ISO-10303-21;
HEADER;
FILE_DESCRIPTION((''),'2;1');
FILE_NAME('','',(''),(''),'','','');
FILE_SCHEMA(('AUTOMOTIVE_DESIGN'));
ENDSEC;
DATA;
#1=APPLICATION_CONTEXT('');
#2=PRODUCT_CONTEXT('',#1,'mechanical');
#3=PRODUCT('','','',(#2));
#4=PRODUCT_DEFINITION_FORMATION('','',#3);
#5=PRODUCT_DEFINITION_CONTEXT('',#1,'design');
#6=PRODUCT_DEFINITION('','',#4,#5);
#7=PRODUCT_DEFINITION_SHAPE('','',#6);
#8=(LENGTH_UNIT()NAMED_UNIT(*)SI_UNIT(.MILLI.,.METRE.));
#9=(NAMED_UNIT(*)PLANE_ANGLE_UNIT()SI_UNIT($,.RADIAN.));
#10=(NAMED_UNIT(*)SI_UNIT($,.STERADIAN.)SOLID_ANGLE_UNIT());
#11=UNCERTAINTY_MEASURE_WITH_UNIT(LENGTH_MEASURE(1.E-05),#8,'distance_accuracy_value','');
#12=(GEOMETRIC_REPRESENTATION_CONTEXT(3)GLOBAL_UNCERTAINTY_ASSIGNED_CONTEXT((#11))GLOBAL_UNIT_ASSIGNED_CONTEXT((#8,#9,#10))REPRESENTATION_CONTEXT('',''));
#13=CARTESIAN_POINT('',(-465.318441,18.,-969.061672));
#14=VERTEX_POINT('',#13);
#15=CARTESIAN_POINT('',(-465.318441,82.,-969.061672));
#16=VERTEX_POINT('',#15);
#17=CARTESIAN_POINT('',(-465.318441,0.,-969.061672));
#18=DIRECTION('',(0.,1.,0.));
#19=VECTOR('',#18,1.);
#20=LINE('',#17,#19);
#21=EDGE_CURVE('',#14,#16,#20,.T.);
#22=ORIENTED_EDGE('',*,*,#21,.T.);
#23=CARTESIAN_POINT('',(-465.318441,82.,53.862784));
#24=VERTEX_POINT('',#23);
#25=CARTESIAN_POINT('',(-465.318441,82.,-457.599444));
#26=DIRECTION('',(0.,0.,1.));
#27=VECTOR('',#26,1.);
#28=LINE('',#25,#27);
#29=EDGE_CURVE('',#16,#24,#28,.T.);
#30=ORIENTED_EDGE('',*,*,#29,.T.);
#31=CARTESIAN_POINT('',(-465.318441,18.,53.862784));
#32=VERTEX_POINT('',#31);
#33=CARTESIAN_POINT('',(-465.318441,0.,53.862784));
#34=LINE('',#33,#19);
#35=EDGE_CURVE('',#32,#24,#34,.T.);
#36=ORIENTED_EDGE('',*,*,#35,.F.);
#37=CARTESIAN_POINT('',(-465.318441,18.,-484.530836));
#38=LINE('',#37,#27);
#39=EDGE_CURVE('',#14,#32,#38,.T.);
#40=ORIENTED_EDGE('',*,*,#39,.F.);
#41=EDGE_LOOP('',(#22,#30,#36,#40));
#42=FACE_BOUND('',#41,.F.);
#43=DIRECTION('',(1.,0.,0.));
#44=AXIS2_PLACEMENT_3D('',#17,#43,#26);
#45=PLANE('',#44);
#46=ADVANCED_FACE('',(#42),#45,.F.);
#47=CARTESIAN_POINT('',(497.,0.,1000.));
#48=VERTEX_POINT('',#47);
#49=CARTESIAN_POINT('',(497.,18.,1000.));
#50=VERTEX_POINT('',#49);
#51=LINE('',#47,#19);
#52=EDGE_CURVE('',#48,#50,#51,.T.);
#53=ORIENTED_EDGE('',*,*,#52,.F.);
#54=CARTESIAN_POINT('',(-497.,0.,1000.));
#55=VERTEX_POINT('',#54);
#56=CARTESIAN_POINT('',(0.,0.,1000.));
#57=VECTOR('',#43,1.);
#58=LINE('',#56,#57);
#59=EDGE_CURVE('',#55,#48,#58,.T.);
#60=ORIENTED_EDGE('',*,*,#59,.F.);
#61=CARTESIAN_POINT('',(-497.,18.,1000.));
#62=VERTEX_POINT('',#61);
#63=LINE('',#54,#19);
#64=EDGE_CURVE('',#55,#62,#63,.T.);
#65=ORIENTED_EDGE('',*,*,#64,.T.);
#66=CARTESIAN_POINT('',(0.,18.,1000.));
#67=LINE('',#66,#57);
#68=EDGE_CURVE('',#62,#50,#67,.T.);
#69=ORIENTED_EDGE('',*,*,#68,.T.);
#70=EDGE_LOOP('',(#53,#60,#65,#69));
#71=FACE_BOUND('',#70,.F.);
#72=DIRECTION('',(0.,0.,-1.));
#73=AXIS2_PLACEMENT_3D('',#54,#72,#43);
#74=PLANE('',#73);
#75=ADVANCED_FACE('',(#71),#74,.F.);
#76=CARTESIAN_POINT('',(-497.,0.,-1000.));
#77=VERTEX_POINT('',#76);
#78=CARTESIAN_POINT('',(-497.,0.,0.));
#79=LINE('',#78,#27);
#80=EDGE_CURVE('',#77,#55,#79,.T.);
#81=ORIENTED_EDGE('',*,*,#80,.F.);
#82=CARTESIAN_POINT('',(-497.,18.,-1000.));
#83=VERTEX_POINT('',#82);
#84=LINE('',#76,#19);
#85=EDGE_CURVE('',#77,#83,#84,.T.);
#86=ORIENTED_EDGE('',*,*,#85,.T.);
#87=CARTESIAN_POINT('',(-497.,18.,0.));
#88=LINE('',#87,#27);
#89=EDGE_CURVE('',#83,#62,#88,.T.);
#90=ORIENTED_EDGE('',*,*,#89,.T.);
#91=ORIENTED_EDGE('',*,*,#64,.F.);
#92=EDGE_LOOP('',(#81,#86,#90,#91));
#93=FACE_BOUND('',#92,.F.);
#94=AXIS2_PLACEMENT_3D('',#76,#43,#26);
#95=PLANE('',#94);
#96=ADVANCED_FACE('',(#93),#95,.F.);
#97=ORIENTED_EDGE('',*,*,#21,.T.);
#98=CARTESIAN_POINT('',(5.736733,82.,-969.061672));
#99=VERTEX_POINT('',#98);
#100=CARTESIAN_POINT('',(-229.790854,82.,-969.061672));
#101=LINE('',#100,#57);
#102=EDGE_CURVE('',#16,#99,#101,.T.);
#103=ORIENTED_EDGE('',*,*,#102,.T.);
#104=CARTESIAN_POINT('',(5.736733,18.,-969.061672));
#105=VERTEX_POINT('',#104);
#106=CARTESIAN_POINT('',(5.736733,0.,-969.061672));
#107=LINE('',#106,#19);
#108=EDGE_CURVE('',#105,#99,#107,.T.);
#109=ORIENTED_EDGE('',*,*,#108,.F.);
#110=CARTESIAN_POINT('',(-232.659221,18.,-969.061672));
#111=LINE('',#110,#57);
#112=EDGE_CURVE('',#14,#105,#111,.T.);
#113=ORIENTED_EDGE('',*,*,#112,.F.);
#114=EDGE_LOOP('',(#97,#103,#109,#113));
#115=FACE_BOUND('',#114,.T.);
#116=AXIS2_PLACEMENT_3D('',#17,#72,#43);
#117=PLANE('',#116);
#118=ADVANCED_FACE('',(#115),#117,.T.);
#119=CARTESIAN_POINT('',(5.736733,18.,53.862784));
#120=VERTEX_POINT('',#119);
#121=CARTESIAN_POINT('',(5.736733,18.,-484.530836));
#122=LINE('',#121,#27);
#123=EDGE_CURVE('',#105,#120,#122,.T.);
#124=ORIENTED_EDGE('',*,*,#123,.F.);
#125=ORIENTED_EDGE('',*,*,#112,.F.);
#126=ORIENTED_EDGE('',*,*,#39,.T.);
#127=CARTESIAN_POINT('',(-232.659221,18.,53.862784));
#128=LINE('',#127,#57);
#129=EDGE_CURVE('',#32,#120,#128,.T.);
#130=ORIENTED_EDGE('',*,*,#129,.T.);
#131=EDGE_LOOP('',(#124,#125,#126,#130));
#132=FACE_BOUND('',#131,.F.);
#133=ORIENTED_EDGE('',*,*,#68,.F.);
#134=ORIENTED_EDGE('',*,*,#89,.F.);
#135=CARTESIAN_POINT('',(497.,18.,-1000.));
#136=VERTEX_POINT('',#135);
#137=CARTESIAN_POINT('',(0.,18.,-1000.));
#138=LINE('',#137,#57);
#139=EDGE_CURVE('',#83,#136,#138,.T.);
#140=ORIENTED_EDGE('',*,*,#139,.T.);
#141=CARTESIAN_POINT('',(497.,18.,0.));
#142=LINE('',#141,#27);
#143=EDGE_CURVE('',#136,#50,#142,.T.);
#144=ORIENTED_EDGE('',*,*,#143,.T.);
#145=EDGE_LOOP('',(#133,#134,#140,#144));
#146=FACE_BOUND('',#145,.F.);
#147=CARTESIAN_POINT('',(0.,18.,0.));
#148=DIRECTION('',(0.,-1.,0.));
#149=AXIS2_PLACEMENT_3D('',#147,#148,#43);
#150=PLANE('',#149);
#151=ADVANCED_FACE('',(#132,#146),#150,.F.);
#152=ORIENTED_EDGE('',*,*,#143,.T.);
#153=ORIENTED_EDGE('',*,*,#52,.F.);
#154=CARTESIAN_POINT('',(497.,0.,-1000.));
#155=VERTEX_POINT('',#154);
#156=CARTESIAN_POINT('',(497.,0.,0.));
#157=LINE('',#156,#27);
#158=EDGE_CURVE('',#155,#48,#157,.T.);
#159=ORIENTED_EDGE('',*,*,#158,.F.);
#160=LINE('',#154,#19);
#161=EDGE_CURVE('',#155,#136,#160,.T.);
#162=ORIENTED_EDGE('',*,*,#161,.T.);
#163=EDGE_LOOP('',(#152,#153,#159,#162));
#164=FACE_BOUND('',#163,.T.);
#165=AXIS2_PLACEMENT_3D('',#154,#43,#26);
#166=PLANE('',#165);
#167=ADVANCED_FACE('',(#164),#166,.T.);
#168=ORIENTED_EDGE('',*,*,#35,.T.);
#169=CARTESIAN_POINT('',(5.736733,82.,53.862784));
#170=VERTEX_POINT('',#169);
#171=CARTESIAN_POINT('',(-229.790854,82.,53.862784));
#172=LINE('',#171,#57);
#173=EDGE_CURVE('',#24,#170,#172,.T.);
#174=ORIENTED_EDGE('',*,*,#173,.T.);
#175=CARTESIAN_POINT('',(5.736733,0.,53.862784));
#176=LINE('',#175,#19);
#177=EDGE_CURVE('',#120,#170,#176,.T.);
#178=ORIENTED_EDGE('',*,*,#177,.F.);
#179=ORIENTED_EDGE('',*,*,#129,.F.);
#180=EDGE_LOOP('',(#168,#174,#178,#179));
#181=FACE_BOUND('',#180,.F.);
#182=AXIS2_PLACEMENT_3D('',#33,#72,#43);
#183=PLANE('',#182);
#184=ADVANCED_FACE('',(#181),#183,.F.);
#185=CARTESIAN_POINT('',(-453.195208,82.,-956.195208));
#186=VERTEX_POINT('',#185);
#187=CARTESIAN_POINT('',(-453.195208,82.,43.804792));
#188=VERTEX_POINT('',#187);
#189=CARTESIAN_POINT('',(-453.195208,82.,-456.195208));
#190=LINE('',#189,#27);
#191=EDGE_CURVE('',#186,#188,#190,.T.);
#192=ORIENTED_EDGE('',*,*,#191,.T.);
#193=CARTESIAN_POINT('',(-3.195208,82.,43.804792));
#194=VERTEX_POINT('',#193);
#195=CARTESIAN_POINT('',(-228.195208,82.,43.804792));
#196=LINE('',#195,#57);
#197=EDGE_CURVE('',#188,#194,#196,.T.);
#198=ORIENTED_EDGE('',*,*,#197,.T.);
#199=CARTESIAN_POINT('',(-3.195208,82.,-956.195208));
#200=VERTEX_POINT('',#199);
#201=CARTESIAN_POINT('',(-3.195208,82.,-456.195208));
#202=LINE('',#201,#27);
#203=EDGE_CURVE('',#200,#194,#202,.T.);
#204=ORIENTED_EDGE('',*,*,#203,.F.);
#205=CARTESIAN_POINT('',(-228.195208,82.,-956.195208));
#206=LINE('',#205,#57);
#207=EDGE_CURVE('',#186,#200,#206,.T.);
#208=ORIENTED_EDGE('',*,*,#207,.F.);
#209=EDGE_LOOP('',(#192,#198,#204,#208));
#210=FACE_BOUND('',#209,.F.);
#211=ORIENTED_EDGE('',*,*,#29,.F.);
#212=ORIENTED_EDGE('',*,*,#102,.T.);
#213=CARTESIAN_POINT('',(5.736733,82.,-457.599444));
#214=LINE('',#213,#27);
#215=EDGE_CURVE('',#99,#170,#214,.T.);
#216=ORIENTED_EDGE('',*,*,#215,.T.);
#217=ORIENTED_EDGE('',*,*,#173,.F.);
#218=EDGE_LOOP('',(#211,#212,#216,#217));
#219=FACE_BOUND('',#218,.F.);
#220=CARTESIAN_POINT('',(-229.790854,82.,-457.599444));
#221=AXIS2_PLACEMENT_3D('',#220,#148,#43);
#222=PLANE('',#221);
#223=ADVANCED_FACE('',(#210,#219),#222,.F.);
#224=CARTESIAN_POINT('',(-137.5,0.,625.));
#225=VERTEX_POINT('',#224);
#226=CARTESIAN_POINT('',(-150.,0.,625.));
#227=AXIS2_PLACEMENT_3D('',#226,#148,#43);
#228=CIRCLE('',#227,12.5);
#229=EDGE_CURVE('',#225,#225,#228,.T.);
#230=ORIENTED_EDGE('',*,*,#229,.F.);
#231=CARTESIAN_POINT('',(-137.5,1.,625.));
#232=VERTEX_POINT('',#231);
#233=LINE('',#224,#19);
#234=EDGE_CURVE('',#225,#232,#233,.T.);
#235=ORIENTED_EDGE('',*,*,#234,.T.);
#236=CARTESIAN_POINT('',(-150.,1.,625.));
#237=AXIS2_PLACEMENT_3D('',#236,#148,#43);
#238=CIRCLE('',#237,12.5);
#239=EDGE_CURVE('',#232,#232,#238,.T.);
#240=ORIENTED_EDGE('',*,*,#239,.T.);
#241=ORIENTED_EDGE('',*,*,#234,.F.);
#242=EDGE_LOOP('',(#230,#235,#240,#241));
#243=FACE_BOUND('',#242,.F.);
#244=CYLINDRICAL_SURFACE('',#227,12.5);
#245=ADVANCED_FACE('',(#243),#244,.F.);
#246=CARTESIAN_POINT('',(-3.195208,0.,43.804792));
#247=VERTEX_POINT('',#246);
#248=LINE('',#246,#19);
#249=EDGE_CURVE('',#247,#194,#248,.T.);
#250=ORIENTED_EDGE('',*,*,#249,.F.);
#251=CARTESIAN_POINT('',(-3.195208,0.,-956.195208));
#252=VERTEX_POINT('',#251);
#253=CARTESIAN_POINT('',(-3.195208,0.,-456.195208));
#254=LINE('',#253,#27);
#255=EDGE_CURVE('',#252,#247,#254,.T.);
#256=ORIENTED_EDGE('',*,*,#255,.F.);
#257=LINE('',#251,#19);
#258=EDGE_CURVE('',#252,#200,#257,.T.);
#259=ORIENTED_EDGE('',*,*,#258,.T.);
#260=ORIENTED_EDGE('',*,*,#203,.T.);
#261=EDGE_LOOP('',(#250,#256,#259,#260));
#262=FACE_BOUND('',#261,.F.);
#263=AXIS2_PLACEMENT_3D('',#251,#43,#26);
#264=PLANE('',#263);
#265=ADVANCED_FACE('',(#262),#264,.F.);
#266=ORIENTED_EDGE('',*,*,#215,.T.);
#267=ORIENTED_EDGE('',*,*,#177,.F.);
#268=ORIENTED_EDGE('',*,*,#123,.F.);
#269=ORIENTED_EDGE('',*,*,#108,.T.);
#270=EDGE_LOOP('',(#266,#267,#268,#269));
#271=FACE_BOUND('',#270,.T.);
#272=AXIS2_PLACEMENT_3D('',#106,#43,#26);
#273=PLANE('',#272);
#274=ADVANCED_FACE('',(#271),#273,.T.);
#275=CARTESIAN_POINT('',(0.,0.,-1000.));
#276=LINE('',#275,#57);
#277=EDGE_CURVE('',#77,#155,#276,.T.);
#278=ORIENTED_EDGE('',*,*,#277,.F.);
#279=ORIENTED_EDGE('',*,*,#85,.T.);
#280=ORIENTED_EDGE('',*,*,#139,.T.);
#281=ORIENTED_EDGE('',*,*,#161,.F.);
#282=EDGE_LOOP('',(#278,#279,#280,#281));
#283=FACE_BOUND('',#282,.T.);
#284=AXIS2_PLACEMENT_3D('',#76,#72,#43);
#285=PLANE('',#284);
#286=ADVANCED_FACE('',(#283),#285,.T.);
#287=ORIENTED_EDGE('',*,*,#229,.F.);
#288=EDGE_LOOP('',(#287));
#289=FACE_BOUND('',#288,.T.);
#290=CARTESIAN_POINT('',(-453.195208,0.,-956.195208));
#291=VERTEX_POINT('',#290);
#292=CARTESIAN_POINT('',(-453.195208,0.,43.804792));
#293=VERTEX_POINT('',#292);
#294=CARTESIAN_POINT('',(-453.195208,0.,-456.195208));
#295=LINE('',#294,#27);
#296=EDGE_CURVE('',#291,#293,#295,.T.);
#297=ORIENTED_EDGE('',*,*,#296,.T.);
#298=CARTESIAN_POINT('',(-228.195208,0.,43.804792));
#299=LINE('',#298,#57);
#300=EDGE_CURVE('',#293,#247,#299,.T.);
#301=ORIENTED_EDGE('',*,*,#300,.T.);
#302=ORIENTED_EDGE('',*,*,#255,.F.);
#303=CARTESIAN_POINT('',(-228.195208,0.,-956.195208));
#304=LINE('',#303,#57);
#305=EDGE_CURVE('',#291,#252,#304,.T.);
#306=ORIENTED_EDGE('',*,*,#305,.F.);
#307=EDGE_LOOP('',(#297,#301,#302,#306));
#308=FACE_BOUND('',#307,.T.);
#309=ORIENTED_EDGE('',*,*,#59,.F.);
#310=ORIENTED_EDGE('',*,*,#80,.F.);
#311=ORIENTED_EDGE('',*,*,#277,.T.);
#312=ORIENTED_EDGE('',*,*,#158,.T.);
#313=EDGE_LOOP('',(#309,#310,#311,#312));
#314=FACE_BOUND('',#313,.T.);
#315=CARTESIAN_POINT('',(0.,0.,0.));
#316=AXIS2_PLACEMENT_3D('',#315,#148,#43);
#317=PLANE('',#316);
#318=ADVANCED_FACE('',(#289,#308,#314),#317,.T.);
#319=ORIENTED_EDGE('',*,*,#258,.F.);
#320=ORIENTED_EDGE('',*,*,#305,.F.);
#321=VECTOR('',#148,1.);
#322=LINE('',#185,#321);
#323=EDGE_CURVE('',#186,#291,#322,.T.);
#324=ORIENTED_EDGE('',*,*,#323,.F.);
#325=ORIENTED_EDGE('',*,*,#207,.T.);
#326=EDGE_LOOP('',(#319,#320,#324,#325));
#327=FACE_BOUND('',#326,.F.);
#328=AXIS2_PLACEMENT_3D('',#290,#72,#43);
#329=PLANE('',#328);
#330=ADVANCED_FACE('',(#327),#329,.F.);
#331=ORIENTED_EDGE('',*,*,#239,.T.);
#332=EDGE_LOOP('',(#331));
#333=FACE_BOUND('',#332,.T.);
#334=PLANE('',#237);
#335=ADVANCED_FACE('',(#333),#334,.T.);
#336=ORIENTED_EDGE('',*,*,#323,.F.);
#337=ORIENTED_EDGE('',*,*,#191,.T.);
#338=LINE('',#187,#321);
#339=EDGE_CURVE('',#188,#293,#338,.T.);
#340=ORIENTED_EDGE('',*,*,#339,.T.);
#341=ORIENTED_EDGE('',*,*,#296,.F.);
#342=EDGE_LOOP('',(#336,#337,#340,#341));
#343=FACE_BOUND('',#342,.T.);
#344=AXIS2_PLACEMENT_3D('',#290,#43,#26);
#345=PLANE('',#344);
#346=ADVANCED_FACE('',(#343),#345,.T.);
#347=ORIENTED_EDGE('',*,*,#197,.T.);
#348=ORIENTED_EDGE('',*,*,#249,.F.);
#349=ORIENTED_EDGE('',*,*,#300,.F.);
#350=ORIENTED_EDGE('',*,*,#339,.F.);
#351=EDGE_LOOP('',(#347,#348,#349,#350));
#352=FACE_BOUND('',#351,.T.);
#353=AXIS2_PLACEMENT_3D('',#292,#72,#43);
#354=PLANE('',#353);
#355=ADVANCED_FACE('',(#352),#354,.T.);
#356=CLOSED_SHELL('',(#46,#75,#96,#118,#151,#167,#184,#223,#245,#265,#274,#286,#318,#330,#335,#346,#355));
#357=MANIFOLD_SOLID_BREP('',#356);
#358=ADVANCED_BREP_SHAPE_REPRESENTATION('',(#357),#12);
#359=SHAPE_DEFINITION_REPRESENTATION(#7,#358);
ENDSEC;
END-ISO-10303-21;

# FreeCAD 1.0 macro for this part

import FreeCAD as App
import Part
import Sketcher

V = App.Vector


def add_polygon(sketch, points):
    """Adds a closed chain of lines whose ends are joined by coincident constraints."""
    first, n = sketch.GeometryCount, len(points)
    for a, b in zip(points, points[1:] + points[:1]):
        sketch.addGeometry(Part.LineSegment(App.Vector(*a, 0), App.Vector(*b, 0)), False)
    for i in range(n):
        sketch.addConstraint(Sketcher.Constraint("Coincident", first + i, 2, first + (i + 1) % n, 1))

doc = App.newDocument("Part")
body = doc.addObject("PartDesign::Body", "Body")

sketch1 = body.newObject("Sketcher::SketchObject", "Sketch")
sketch1.AttachmentSupport = (doc.getObject("XZ_Plane"), [""])
sketch1.MapMode = "FlatFace"
add_polygon(sketch1, [(-497, 1000), (-497, -1000), (497, -1000), (497, 1000)])
sketch1.addConstraint([
    Sketcher.Constraint("Vertical", 0),
    Sketcher.Constraint("Horizontal", 1),
    Sketcher.Constraint("Vertical", 2),
    Sketcher.Constraint("Horizontal", 3),
    Sketcher.Constraint("Symmetric", 0, 2, 2, 2, -1, 1),
    Sketcher.Constraint("DistanceX", 1, 1, 1, 2, 994.0),
    Sketcher.Constraint("DistanceY", 0, 2, 0, 1, 2000.0),
])
pad1 = body.newObject("PartDesign::Pad", "Pad")
pad1.Profile = sketch1
pad1.Length = 18
pad1.Reversed = True

sketch2 = body.newObject("Sketcher::SketchObject", "Sketch001")
sketch2.AttachmentSupport = (doc.getObject("XZ_Plane"), [""])
sketch2.MapMode = "FlatFace"
sketch2.addGeometry(Part.Circle(V(-150, 625, 0), V(0, 0, 1), 12), False)
sketch2.addConstraint([
    Sketcher.Constraint("Diameter", 0, 25.0),
    Sketcher.Constraint("DistanceX", 0, 3, -1, 1, 150.0),
    Sketcher.Constraint("DistanceY", -1, 1, 0, 3, 625.0),
])
pocket1 = body.newObject("PartDesign::Pocket", "Pocket")
pocket1.Profile = sketch2
pocket1.Length = 1

sketch3 = body.newObject("Sketcher::SketchObject", "Sketch002")
sketch3.AttachmentSupport = (doc.getObject("XZ_Plane"), [""])
sketch3.MapMode = "FlatFace"
add_polygon(sketch3, [(-453, 44), (-453, -956), (-3, -956), (-3, 44)])
sketch3.addConstraint([
    Sketcher.Constraint("Vertical", 0),
    Sketcher.Constraint("Horizontal", 1),
    Sketcher.Constraint("Vertical", 2),
    Sketcher.Constraint("Horizontal", 3),
    Sketcher.Constraint("DistanceX", 1, 1, 1, 2, 450.0),
    Sketcher.Constraint("DistanceY", 0, 2, 0, 1, 1000.0),
    Sketcher.Constraint("DistanceX", 0, 2, -1, 1, 453.195208),
    Sketcher.Constraint("DistanceY", 0, 2, -1, 1, 956.195208),
])
pocket2 = body.newObject("PartDesign::Pocket", "Pocket001")
pocket2.Profile = sketch3
pocket2.Length = 82

sketch4 = body.newObject("Sketcher::SketchObject", "Sketch003")
sketch4.AttachmentSupport = (doc.getObject("XZ_Plane"), [""])
sketch4.MapMode = "FlatFace"
add_polygon(sketch4, [(-465, 54), (-465, -969), (6, -969), (6, 54)])
add_polygon(sketch4, [(-3, -956), (-453, -956), (-453, 44), (-3, 44)])
sketch4.addConstraint([
    Sketcher.Constraint("Vertical", 0),
    Sketcher.Constraint("Horizontal", 1),
    Sketcher.Constraint("Vertical", 2),
    Sketcher.Constraint("Horizontal", 3),
    Sketcher.Constraint("Horizontal", 4),
    Sketcher.Constraint("Vertical", 5),
    Sketcher.Constraint("Horizontal", 6),
    Sketcher.Constraint("Vertical", 7),
    Sketcher.Constraint("DistanceX", 4, 2, 4, 1, 450.0),
    Sketcher.Constraint("DistanceY", 5, 1, 5, 2, 1000.0),
    Sketcher.Constraint("DistanceX", 1, 1, 1, 2, 471.055174),
    Sketcher.Constraint("DistanceY", 0, 2, 0, 1, 1022.924457),
    Sketcher.Constraint("DistanceX", 0, 2, -1, 1, 465.318441),
    Sketcher.Constraint("DistanceX", 4, 2, -1, 1, 453.195208),
    Sketcher.Constraint("DistanceY", 4, 2, -1, 1, 956.195208),
    Sketcher.Constraint("DistanceY", 0, 2, -1, 1, 969.061672),
])
pad2 = body.newObject("PartDesign::Pad", "Pad001")
pad2.Profile = sketch4
pad2.Length = 82
pad2.Reversed = True

doc.recompute()
